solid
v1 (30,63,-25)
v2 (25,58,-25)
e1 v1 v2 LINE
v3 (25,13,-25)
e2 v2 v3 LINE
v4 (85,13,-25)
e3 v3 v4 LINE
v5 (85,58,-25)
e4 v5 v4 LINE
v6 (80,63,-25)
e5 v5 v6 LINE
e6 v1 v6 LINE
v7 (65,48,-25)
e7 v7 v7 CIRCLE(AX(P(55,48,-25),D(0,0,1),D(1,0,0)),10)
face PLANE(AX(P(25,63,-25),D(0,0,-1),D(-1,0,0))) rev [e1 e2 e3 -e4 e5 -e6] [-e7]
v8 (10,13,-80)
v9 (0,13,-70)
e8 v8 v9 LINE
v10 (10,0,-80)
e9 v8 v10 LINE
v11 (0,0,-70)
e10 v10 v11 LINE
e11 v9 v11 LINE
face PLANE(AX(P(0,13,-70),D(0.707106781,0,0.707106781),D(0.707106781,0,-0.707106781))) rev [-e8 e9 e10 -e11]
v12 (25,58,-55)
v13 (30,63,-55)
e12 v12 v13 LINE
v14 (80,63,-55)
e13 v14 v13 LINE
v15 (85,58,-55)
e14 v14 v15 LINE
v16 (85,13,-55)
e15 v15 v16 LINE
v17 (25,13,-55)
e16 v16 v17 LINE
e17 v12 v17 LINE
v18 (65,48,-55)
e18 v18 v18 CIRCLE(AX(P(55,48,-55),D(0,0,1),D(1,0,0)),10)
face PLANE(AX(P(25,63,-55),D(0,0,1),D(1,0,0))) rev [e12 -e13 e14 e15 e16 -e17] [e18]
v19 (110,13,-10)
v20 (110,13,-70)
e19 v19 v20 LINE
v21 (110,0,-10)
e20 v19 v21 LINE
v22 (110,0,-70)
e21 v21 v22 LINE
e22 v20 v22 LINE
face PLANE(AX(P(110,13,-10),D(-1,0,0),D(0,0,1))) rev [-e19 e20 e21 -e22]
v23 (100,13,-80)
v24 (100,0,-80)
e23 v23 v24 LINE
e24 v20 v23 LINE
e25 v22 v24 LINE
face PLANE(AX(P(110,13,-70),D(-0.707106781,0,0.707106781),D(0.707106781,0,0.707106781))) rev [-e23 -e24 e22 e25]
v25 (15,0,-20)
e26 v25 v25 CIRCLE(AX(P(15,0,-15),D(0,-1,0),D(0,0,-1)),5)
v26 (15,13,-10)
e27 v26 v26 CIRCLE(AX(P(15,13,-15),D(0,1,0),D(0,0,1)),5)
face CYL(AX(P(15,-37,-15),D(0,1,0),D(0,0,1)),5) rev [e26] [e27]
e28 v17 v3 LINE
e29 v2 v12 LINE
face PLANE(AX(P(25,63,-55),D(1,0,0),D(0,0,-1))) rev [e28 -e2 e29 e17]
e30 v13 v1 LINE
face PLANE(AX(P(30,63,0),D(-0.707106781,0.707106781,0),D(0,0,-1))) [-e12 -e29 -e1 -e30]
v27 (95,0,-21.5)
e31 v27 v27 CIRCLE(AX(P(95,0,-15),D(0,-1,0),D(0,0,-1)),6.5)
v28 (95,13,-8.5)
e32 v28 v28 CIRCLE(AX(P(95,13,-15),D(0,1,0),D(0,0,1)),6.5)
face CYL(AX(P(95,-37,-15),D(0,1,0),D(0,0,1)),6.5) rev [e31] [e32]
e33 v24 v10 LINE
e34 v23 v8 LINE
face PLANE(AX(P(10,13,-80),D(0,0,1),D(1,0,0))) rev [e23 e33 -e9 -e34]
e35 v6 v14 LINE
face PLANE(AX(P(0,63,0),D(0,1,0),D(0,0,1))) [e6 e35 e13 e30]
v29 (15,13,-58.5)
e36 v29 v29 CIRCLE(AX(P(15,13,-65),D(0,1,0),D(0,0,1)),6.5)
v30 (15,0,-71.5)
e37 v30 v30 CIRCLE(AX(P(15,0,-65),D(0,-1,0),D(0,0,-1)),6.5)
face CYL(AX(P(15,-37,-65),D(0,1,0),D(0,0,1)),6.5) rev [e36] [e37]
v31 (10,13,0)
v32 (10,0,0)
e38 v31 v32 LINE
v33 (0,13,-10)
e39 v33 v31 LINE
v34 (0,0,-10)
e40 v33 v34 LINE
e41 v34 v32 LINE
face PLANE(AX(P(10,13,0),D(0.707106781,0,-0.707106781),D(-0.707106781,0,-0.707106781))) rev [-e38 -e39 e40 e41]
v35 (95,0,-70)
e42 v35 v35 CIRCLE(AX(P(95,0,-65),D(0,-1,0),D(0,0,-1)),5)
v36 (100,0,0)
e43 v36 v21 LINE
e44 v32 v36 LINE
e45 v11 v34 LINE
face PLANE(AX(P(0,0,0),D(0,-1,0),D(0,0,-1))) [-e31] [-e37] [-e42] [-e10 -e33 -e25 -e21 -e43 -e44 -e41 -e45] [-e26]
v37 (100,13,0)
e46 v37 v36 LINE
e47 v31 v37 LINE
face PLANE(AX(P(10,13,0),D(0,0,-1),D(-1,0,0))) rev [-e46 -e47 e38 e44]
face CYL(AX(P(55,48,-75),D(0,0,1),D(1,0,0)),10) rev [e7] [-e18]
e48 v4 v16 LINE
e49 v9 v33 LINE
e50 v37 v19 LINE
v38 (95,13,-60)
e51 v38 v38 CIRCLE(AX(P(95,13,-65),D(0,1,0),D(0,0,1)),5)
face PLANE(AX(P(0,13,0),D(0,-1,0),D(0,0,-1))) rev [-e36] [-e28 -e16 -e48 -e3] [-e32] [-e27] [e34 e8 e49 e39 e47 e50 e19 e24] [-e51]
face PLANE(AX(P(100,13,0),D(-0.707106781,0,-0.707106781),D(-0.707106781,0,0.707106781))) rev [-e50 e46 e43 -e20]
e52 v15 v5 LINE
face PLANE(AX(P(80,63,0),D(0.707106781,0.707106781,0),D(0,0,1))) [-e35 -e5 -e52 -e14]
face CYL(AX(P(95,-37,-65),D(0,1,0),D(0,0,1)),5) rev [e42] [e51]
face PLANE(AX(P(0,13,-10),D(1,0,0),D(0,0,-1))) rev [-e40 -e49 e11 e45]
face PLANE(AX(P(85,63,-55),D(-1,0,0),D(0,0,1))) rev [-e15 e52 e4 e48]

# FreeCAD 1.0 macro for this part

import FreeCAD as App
import Part
import Sketcher

V = App.Vector
Q = App.Units.Quantity


def edges_at(feature, points):
    """Names of the edges that pass closest to the given points."""
    edges = feature.Shape.Edges
    near = lambda p: min(range(len(edges)), key=lambda i: edges[i].distToShape(Part.Vertex(*p))[0])
    return sorted({f"Edge{near(p) + 1}" for p in points})


def add_polygon(sketch, points):
    """Adds a closed chain of lines whose ends are joined by coincident constraints."""
    first, n = sketch.GeometryCount, len(points)
    for a, b in zip(points, points[1:] + points[:1]):
        sketch.addGeometry(Part.LineSegment(App.Vector(*a, 0), App.Vector(*b, 0)), False)
    for i in range(n):
        sketch.addConstraint(Sketcher.Constraint("Coincident", first + i, 2, first + (i + 1) % n, 1))

doc = App.newDocument("Part")
body = doc.addObject("PartDesign::Body", "Body")

# Sketch on XZ plane
sketch1 = body.newObject("Sketcher::SketchObject", "Sketch")
sketch1.AttachmentSupport = (doc.getObject("XZ_Plane"), [""])
sketch1.MapMode = "FlatFace"
add_polygon(sketch1, [(10, -80), (0, -70), (0, -10), (10, 0), (100, 0), (110, -10), (110, -70), (100, -80)])  # lines 0-7
sketch1.addConstraint([
    Sketcher.Constraint("Vertical", 1),
    Sketcher.Constraint("Horizontal", 3),
    Sketcher.Constraint("Vertical", 5),
    Sketcher.Constraint("Horizontal", 7),
    Sketcher.Constraint("PointOnObject", 0, 2, -2),
    Sketcher.Constraint("PointOnObject", 2, 2, -1),
    Sketcher.Constraint("Perpendicular", 0, 2),
    Sketcher.Constraint("Perpendicular", 2, 4),
    Sketcher.Constraint("Perpendicular", 4, 6),
    Sketcher.Constraint("Horizontal", 1, 2, 4, 2),
    Sketcher.Constraint("Horizontal", 0, 2, 5, 2),
    Sketcher.Constraint("Vertical", 3, 2, 6, 2),
    Sketcher.Constraint("Vertical", 2, 2, 7, 2),
    Sketcher.Constraint("DistanceX", 3, 1, 3, 2, Q("90 mm")),
    Sketcher.Constraint("DistanceY", 1, 1, 1, 2, Q("60 mm")),
    Sketcher.Constraint("DistanceY", 0, 2, -1, 1, Q("70 mm")),
])
pad1 = body.newObject("PartDesign::Pad", "Pad")
pad1.Profile = sketch1
pad1.Length = 13
pad1.Reversed = True

# Sketch on XZ plane
sketch2 = body.newObject("Sketcher::SketchObject", "Sketch001")
sketch2.AttachmentSupport = (doc.getObject("XZ_Plane"), [""])
sketch2.MapMode = "FlatFace"
sketch2.AttachmentOffset = App.Placement(V(0, 0, -13), App.Rotation())
add_polygon(sketch2, [(25, -55), (25, -25), (85, -25), (85, -55)])  # lines 0-3
sketch2.addConstraint([
    Sketcher.Constraint("Vertical", 0),
    Sketcher.Constraint("Horizontal", 1),
    Sketcher.Constraint("Vertical", 2),
    Sketcher.Constraint("Horizontal", 3),
    Sketcher.Constraint("DistanceX", 1, 1, 1, 2, Q("60 mm")),
    Sketcher.Constraint("DistanceY", 0, 1, 0, 2, Q("30 mm")),
    Sketcher.Constraint("DistanceX", -1, 1, 0, 2, Q("25 mm")),
    Sketcher.Constraint("DistanceY", 0, 2, -1, 1, Q("25 mm")),
])
pad2 = body.newObject("PartDesign::Pad", "Pad001")
pad2.Profile = sketch2
pad2.Length = 50
pad2.Reversed = True
doc.recompute()

chamfer = body.newObject("PartDesign::Chamfer", "Chamfer")
chamfer.Base = (pad2, edges_at(pad2, [(25, 63, -40), (85, 63, -40)]))
chamfer.Size = 5

# Sketch on XZ plane
sketch3 = body.newObject("Sketcher::SketchObject", "Sketch002")
sketch3.AttachmentSupport = (doc.getObject("XZ_Plane"), [""])
sketch3.MapMode = "FlatFace"
sketch3.AttachmentOffset = App.Placement(V(0, 0, -13), App.Rotation())
sketch3.addGeometry([
    Part.Circle(V(15, -65, 0), V(0, 0, 1), 6),
    Part.Circle(V(95, -15, 0), V(0, 0, 1), 6),
    Part.Circle(V(95, -65, 0), V(0, 0, 1), 5),
    Part.Circle(V(15, -15, 0), V(0, 0, 1), 5),
], False)
sketch3.addConstraint([
    Sketcher.Constraint("Equal", 0, 1),
    Sketcher.Constraint("Equal", 2, 3),
    Sketcher.Constraint("Horizontal", 0, 3, 2, 3),
    Sketcher.Constraint("Horizontal", 1, 3, 3, 3),
    Sketcher.Constraint("Vertical", 1, 3, 2, 3),
    Sketcher.Constraint("Vertical", 0, 3, 3, 3),
    Sketcher.Constraint("Diameter", 0, Q("13 mm")),
    Sketcher.Constraint("Diameter", 2, Q("10 mm")),
    Sketcher.Constraint("DistanceX", -1, 1, 0, 3, Q("15 mm")),
    Sketcher.Constraint("DistanceY", 0, 3, -1, 1, Q("65 mm")),
    Sketcher.Constraint("DistanceX", -1, 1, 1, 3, Q("95 mm")),
    Sketcher.Constraint("DistanceY", 1, 3, -1, 1, Q("15 mm")),
])
pocket1 = body.newObject("PartDesign::Pocket", "Pocket")
pocket1.Profile = sketch3
pocket1.Length = 50
pocket1.Reversed = True

# Sketch on XY plane
sketch4 = body.newObject("Sketcher::SketchObject", "Sketch003")
sketch4.AttachmentSupport = (doc.getObject("XY_Plane"), [""])
sketch4.MapMode = "FlatFace"
sketch4.AttachmentOffset = App.Placement(V(0, 0, -25), App.Rotation())
sketch4.addGeometry(Part.Circle(V(55, 48, 0), V(0, 0, 1), 10), False)
sketch4.addConstraint([
    Sketcher.Constraint("Diameter", 0, Q("20 mm")),
    Sketcher.Constraint("DistanceX", -1, 1, 0, 3, Q("55 mm")),
    Sketcher.Constraint("DistanceY", -1, 1, 0, 3, Q("48 mm")),
])
pocket2 = body.newObject("PartDesign::Pocket", "Pocket001")
pocket2.Profile = sketch4
pocket2.Length = 50

doc.recompute()
